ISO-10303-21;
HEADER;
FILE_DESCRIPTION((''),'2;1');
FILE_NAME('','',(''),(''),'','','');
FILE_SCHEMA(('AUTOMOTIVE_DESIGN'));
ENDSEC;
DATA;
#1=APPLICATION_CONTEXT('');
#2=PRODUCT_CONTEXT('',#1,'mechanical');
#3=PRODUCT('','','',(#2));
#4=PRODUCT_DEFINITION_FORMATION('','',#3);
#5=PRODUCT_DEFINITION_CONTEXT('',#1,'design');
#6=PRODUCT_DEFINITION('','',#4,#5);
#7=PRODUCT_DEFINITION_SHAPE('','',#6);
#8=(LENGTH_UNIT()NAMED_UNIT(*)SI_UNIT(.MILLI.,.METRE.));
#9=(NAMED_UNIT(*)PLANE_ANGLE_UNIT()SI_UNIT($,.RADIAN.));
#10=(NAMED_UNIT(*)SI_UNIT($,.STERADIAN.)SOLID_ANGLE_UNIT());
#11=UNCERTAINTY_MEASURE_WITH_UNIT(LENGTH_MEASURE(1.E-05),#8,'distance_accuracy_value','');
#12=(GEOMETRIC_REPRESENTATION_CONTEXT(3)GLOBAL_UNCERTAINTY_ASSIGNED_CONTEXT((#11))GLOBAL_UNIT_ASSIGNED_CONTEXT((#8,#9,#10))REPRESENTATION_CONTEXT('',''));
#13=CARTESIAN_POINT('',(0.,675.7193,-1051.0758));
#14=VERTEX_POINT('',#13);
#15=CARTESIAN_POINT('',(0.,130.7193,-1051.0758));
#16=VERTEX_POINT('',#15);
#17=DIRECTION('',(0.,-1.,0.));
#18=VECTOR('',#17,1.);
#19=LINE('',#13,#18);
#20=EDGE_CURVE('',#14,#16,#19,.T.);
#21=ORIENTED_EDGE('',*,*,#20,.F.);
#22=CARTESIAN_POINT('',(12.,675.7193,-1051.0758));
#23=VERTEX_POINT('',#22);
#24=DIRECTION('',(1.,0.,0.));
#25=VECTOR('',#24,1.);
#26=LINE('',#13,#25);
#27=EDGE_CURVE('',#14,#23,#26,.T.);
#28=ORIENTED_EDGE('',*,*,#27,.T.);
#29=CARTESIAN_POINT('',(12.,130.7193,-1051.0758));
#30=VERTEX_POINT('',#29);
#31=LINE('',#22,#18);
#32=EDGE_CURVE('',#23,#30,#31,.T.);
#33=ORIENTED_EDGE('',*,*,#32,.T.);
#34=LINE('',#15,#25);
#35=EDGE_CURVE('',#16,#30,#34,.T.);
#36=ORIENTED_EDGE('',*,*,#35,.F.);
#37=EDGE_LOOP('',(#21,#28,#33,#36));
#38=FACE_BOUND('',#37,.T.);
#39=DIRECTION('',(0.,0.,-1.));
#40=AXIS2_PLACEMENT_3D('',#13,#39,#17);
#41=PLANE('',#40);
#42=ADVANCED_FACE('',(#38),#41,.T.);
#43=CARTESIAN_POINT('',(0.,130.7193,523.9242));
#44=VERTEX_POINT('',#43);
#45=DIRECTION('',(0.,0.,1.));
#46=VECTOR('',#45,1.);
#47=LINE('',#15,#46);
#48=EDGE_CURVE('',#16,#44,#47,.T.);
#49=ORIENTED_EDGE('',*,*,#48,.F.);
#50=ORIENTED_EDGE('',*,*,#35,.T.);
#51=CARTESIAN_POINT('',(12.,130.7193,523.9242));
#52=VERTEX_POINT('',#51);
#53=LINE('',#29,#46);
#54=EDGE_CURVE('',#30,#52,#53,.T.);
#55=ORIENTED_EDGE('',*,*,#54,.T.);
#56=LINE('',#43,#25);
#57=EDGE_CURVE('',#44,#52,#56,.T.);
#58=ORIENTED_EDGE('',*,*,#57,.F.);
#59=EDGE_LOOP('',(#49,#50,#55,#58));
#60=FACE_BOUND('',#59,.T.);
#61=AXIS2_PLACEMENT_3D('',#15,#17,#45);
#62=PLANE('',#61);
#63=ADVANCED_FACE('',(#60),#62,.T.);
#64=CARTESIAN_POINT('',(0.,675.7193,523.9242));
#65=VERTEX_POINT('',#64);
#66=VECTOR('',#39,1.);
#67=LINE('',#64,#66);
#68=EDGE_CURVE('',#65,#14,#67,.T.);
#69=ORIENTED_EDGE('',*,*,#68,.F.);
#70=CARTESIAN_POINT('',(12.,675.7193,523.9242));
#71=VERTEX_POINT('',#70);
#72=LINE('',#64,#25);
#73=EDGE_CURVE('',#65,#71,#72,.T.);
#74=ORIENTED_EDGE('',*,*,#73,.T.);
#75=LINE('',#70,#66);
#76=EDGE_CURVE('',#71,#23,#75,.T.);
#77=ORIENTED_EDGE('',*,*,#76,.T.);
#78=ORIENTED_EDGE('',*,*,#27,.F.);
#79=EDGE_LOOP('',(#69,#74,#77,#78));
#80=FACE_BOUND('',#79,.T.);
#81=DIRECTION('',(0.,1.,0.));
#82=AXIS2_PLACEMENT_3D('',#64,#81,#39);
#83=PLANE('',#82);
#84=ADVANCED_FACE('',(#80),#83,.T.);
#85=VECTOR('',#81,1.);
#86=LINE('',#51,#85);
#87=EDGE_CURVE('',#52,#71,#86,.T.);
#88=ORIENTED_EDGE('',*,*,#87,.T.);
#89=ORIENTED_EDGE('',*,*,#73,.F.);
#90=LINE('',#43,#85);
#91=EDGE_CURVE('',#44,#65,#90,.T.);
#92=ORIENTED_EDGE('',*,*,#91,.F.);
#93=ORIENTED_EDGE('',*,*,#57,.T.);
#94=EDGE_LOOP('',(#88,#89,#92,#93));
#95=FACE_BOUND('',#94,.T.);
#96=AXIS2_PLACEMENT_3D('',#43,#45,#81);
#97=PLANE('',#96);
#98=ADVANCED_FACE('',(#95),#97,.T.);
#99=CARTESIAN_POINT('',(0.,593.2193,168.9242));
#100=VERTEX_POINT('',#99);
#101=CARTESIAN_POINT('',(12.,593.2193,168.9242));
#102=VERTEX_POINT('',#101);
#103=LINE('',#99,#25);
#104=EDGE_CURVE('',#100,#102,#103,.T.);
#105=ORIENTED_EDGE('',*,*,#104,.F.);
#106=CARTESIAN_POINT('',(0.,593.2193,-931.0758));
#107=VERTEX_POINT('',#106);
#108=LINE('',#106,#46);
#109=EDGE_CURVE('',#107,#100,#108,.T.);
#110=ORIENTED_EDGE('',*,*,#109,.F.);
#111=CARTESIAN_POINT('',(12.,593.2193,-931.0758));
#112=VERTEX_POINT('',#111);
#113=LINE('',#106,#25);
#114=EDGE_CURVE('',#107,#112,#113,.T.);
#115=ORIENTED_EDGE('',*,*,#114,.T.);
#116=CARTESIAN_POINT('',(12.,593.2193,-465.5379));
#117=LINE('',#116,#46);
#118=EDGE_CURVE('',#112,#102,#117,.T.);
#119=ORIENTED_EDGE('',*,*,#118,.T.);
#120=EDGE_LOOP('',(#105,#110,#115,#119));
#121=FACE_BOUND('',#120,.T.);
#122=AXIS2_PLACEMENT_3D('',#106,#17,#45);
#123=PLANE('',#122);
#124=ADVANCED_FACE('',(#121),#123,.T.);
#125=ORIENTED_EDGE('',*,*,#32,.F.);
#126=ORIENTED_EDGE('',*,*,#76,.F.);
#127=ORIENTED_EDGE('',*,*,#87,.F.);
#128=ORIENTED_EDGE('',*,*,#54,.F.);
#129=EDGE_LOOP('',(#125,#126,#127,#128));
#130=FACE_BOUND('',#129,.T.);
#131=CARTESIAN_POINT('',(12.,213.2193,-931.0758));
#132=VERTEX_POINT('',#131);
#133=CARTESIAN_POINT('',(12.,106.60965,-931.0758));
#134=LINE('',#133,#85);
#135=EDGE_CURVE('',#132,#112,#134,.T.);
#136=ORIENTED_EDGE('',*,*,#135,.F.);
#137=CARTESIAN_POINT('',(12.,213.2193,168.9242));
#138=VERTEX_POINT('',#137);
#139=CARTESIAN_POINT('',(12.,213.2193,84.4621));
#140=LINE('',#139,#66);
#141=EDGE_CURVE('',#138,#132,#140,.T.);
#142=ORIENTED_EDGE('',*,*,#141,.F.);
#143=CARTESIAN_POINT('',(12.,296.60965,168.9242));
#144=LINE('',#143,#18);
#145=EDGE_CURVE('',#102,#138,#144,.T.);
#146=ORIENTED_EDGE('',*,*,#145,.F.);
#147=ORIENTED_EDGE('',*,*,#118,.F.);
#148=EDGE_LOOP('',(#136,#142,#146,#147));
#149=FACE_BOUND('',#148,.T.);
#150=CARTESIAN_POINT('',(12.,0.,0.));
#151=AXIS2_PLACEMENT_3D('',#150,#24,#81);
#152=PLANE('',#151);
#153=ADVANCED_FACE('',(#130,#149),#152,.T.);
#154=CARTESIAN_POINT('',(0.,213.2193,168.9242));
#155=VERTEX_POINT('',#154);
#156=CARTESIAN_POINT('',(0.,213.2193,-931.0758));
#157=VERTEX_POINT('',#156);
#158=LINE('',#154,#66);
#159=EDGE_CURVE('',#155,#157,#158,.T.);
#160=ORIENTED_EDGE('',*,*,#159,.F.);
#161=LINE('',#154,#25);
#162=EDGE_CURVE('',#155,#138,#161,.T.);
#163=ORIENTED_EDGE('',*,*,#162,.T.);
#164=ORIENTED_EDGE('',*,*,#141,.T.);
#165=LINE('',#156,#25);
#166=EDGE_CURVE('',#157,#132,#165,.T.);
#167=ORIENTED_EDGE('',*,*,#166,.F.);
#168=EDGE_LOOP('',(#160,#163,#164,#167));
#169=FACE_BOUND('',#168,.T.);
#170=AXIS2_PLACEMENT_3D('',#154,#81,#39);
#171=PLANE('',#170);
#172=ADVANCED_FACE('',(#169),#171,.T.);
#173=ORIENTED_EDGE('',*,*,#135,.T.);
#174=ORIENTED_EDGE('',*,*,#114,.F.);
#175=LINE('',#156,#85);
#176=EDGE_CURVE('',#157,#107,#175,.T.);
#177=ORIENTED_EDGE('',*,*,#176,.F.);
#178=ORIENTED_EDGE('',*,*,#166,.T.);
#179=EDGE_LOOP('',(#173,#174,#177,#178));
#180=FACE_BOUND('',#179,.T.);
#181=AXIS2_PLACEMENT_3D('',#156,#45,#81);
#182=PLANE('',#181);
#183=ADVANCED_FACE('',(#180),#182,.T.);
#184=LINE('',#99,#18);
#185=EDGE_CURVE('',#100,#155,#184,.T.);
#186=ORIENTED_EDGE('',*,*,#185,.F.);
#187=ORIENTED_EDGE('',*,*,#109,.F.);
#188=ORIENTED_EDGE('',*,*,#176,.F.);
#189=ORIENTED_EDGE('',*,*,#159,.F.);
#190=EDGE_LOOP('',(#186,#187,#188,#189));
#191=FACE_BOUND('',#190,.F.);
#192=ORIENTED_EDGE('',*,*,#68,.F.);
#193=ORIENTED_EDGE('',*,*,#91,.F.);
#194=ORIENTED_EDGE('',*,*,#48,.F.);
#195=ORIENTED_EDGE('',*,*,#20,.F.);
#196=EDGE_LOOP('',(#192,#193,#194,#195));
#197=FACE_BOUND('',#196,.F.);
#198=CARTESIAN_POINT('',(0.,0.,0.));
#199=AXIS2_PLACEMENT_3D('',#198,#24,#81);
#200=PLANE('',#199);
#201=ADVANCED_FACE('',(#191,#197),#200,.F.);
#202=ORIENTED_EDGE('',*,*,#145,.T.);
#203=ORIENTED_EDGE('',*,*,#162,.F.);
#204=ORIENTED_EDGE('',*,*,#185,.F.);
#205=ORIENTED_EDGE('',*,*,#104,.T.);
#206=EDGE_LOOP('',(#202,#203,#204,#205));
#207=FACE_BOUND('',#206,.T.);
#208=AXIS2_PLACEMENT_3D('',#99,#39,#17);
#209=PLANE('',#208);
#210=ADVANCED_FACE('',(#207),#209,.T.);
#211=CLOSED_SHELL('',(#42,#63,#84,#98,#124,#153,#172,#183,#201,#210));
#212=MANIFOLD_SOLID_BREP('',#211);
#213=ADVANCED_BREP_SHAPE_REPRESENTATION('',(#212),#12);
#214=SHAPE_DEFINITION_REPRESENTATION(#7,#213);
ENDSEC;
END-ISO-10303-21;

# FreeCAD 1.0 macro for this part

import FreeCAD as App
import Part
import Sketcher
Q = App.Units.Quantity


def add_polygon(sketch, points):
    """Adds a closed chain of lines whose ends are joined by coincident constraints."""
    first, n = sketch.GeometryCount, len(points)
    for a, b in zip(points, points[1:] + points[:1]):
        sketch.addGeometry(Part.LineSegment(App.Vector(*a, 0), App.Vector(*b, 0)), False)
    for i in range(n):
        sketch.addConstraint(Sketcher.Constraint("Coincident", first + i, 2, first + (i + 1) % n, 1))

doc = App.newDocument("Part")
body = doc.addObject("PartDesign::Body", "Body")

# Sketch on YZ plane
sketch1 = body.newObject("Sketcher::SketchObject", "Sketch")
sketch1.AttachmentSupport = (doc.getObject("YZ_Plane"), [""])
sketch1.MapMode = "FlatFace"
add_polygon(sketch1, [(676, 524), (131, 524), (131, -1051), (676, -1051)])  # lines 0-3
sketch1.addConstraint([
    Sketcher.Constraint("Horizontal", 0),
    Sketcher.Constraint("Vertical", 1),
    Sketcher.Constraint("Horizontal", 2),
    Sketcher.Constraint("Vertical", 3),
    Sketcher.Constraint("DistanceX", 0, 2, 0, 1, Q("545 mm")),
    Sketcher.Constraint("DistanceY", 1, 2, 1, 1, Q("1575 mm")),
    Sketcher.Constraint("DistanceX", -1, 1, 0, 2, Q("130.7193 mm")),
    Sketcher.Constraint("DistanceY", -1, 1, 0, 2, Q("523.9242 mm")),
])
pad1 = body.newObject("PartDesign::Pad", "Pad")
pad1.Profile = sketch1
pad1.Length = 12

# Sketch on YZ plane
sketch2 = body.newObject("Sketcher::SketchObject", "Sketch001")
sketch2.AttachmentSupport = (doc.getObject("YZ_Plane"), [""])
sketch2.MapMode = "FlatFace"
add_polygon(sketch2, [(213, 169), (213, -931), (593, -931), (593, 169)])  # lines 0-3
sketch2.addConstraint([
    Sketcher.Constraint("Vertical", 0),
    Sketcher.Constraint("Horizontal", 1),
    Sketcher.Constraint("Vertical", 2),
    Sketcher.Constraint("Horizontal", 3),
    Sketcher.Constraint("DistanceX", 1, 1, 1, 2, Q("380 mm")),
    Sketcher.Constraint("DistanceY", 0, 2, 0, 1, Q("1100 mm")),
    Sketcher.Constraint("DistanceX", -1, 1, 0, 2, Q("213.2193 mm")),
    Sketcher.Constraint("DistanceY", 0, 2, -1, 1, Q("931.0758 mm")),
])
pocket1 = body.newObject("PartDesign::Pocket", "Pocket")
pocket1.Profile = sketch2
pocket1.Type = "UpToFirst"
pocket1.Reversed = True

doc.recompute()
